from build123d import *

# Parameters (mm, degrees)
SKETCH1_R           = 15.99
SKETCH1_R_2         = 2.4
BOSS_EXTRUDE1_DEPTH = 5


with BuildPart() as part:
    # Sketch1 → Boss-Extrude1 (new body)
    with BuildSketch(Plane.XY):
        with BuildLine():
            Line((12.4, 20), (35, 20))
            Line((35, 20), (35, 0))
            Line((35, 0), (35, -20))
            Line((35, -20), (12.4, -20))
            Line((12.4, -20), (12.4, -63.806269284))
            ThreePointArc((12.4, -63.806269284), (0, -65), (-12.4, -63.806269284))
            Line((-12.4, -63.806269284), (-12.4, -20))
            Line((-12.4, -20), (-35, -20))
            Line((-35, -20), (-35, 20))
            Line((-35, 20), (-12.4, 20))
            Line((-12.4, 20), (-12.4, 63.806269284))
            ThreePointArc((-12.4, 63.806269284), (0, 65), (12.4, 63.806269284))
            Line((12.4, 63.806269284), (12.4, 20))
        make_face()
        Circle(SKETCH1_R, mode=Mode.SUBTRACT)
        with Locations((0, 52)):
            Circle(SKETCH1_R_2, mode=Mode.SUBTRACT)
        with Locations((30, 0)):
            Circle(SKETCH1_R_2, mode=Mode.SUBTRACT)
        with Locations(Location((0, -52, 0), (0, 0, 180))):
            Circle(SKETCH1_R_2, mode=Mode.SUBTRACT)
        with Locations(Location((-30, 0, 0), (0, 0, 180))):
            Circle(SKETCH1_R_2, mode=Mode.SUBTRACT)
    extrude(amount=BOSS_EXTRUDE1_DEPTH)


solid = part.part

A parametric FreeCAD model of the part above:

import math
import FreeCAD as App
import Part
import Sketcher
from FreeCAD import Vector
Q = App.Units.Quantity

doc = App.newDocument("Part")
body = doc.addObject("PartDesign::Body", "Body")

# Sketch on XY plane
sketch1 = body.newObject("Sketcher::SketchObject", "Sketch")
sketch1.AttachmentSupport = (doc.getObject("XY_Plane"), [""])
sketch1.MapMode = "FlatFace"
sketch1.addGeometry(Part.LineSegment(Vector(35, 20, 0), Vector(12.4, 20, 0)), False)
sketch1.addGeometry(Part.LineSegment(Vector(12.4, 20, 0), Vector(12.4, 63.806269, 0)), False)
sketch1.addGeometry(Part.ArcOfCircle(Part.Circle(Vector(0, 0, 0), Vector(0, 0, 1), 65), math.radians(79.002321), math.radians(100.997679)), False)
sketch1.addGeometry(Part.LineSegment(Vector(-12.4, 63.806269, 0), Vector(-12.4, 20, 0)), False)
sketch1.addGeometry(Part.LineSegment(Vector(-12.4, 20, 0), Vector(-35, 20, 0)), False)
sketch1.addGeometry(Part.LineSegment(Vector(-35, 20, 0), Vector(-35, -20, 0)), False)
sketch1.addGeometry(Part.LineSegment(Vector(-35, -20, 0), Vector(-12.4, -20, 0)), False)
sketch1.addGeometry(Part.LineSegment(Vector(-12.4, -20, 0), Vector(-12.4, -63.806269, 0)), False)
sketch1.addGeometry(Part.ArcOfCircle(Part.Circle(Vector(0, 0, 0), Vector(0, 0, 1), 65), math.radians(-100.997679), math.radians(-79.002321)), False)
sketch1.addGeometry(Part.LineSegment(Vector(12.4, -63.806269, 0), Vector(12.4, -20, 0)), False)
sketch1.addGeometry(Part.LineSegment(Vector(12.4, -20, 0), Vector(35, -20, 0)), False)
sketch1.addGeometry(Part.LineSegment(Vector(35, -20, 0), Vector(35, 20, 0)), False)
sketch1.addGeometry(Part.Circle(Vector(0, -52, 0), Vector(0, 0, 1), 2.4), False)
sketch1.addGeometry(Part.Circle(Vector(30, 0, 0), Vector(0, 0, 1), 2.4), False)
sketch1.addGeometry(Part.Circle(Vector(0, 0, 0), Vector(0, 0, 1), 15.99), False)
sketch1.addGeometry(Part.Circle(Vector(-30, 0, 0), Vector(0, 0, 1), 2.4), False)
sketch1.addGeometry(Part.Circle(Vector(0, 52, 0), Vector(0, 0, 1), 2.4), False)
sketch1.addConstraint(Sketcher.Constraint("Coincident", 0, 2, 1, 1))
sketch1.addConstraint(Sketcher.Constraint("Coincident", 1, 2, 2, 1))
sketch1.addConstraint(Sketcher.Constraint("Coincident", 2, 2, 3, 1))
sketch1.addConstraint(Sketcher.Constraint("Coincident", 3, 2, 4, 1))
sketch1.addConstraint(Sketcher.Constraint("Coincident", 4, 2, 5, 1))
sketch1.addConstraint(Sketcher.Constraint("Coincident", 5, 2, 6, 1))
sketch1.addConstraint(Sketcher.Constraint("Coincident", 6, 2, 7, 1))
sketch1.addConstraint(Sketcher.Constraint("Coincident", 7, 2, 8, 1))
sketch1.addConstraint(Sketcher.Constraint("Coincident", 8, 2, 9, 1))
sketch1.addConstraint(Sketcher.Constraint("Coincident", 9, 2, 10, 1))
sketch1.addConstraint(Sketcher.Constraint("Coincident", 10, 2, 11, 1))
sketch1.addConstraint(Sketcher.Constraint("Coincident", 11, 2, 0, 1))
sketch1.addConstraint(Sketcher.Constraint("Horizontal", 0))
sketch1.addConstraint(Sketcher.Constraint("Vertical", 1))
sketch1.addConstraint(Sketcher.Constraint("Vertical", 3))
sketch1.addConstraint(Sketcher.Constraint("Horizontal", 4))
sketch1.addConstraint(Sketcher.Constraint("Vertical", 5))
sketch1.addConstraint(Sketcher.Constraint("Horizontal", 6))
sketch1.addConstraint(Sketcher.Constraint("Vertical", 7))
sketch1.addConstraint(Sketcher.Constraint("Vertical", 9))
sketch1.addConstraint(Sketcher.Constraint("Horizontal", 10))
sketch1.addConstraint(Sketcher.Constraint("Vertical", 11))
sketch1.addConstraint(Sketcher.Constraint("Coincident", 2, 3, -1, 1))
sketch1.addConstraint(Sketcher.Constraint("Coincident", 8, 3, -1, 1))
sketch1.addConstraint(Sketcher.Constraint("Coincident", 14, 3, -1, 1))
sketch1.addConstraint(Sketcher.Constraint("Equal", 2, 8))
sketch1.addConstraint(Sketcher.Constraint("Equal", 12, 13))
sketch1.addConstraint(Sketcher.Constraint("Equal", 13, 15))
sketch1.addConstraint(Sketcher.Constraint("Equal", 15, 16))
sketch1.addConstraint(Sketcher.Constraint("Symmetric", 13, 3, 15, 3, -1, 1))
sketch1.addConstraint(Sketcher.Constraint("Symmetric", 12, 3, 16, 3, -1, 1))
sketch1.addConstraint(Sketcher.Constraint("Symmetric", 0, 2, 6, 2, -1, 1))
sketch1.addConstraint(Sketcher.Constraint("Symmetric", 3, 2, 9, 2, -1, 1))
sketch1.addConstraint(Sketcher.Constraint("Symmetric", 0, 2, 3, 2, -2))
sketch1.addConstraint(Sketcher.Constraint("PointOnObject", 12, 3, -2))
sketch1.addConstraint(Sketcher.Constraint("PointOnObject", 13, 3, -1))
sketch1.addConstraint(Sketcher.Constraint("Equal", 0, 4))
sketch1.addConstraint(Sketcher.Constraint("Radius", 2, Q("65 mm")))
sketch1.addConstraint(Sketcher.Constraint("Diameter", 12, Q("4.8 mm")))
sketch1.addConstraint(Sketcher.Constraint("Diameter", 14, Q("31.98 mm")))
sketch1.addConstraint(Sketcher.Constraint("DistanceY", 5, 2, 5, 1, Q("40 mm")))
sketch1.addConstraint(Sketcher.Constraint("DistanceX", 0, 2, 0, 1, Q("22.6 mm")))
sketch1.addConstraint(Sketcher.Constraint("DistanceY", 12, 3, -1, 1, Q("52 mm")))
sketch1.addConstraint(Sketcher.Constraint("DistanceX", -1, 1, 13, 3, Q("30 mm")))
sketch1.addConstraint(Sketcher.Constraint("DistanceX", 4, 2, -1, 1, Q("35 mm")))
pad1 = body.newObject("PartDesign::Pad", "Pad")
pad1.Profile = sketch1
pad1.Length = 5

doc.recompute()
